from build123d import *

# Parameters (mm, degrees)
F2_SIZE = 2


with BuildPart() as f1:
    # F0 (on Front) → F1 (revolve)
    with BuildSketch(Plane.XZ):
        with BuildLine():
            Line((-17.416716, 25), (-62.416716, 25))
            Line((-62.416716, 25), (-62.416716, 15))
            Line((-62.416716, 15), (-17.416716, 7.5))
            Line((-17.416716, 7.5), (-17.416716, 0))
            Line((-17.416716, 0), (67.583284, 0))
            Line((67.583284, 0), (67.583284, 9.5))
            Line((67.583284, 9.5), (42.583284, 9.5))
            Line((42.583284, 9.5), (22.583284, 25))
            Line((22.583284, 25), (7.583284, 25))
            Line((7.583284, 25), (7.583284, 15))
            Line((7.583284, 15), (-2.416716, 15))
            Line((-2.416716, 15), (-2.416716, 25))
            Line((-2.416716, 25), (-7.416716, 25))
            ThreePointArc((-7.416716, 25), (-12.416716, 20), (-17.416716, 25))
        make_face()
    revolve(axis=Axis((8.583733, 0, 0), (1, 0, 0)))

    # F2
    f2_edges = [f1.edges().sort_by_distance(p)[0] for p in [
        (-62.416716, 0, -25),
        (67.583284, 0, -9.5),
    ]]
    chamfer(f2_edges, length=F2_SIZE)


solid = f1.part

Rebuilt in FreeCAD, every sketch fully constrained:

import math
import FreeCAD as App
import Part
import Sketcher

V = App.Vector


def edges_at(feature, points):
    """Names of the edges that pass closest to the given points."""
    edges = feature.Shape.Edges
    near = lambda p: min(range(len(edges)), key=lambda i: edges[i].distToShape(Part.Vertex(*p))[0])
    return sorted({f"Edge{near(p) + 1}" for p in points})

doc = App.newDocument("Part")
body = doc.addObject("PartDesign::Body", "Body")

# Sketch on XZ plane
sketch1 = body.newObject("Sketcher::SketchObject", "Sketch")
sketch1.AttachmentSupport = (doc.getObject("XZ_Plane"), [""])
sketch1.MapMode = "FlatFace"
sketch1.addGeometry(Part.LineSegment(V(-17, 25, 0), V(-62, 25, 0)), False)
sketch1.addGeometry(Part.LineSegment(V(-62, 25, 0), V(-62, 15, 0)), False)
sketch1.addGeometry(Part.LineSegment(V(-62, 15, 0), V(-17, 8, 0)), False)
sketch1.addGeometry(Part.LineSegment(V(-17, 8, 0), V(-17, 0, 0)), False)
sketch1.addGeometry(Part.LineSegment(V(-17, 0, 0), V(68, 0, 0)), False)
sketch1.addGeometry(Part.LineSegment(V(68, 0, 0), V(68, 10, 0)), False)
sketch1.addGeometry(Part.LineSegment(V(68, 10, 0), V(43, 10, 0)), False)
sketch1.addGeometry(Part.LineSegment(V(43, 10, 0), V(23, 25, 0)), False)
sketch1.addGeometry(Part.LineSegment(V(23, 25, 0), V(8, 25, 0)), False)
sketch1.addGeometry(Part.LineSegment(V(8, 25, 0), V(8, 15, 0)), False)
sketch1.addGeometry(Part.LineSegment(V(8, 15, 0), V(-2, 15, 0)), False)
sketch1.addGeometry(Part.LineSegment(V(-2, 15, 0), V(-2, 25, 0)), False)
sketch1.addGeometry(Part.LineSegment(V(-2, 25, 0), V(-7, 25, 0)), False)
sketch1.addGeometry(Part.ArcOfCircle(Part.Circle(V(-12, 25, 0), V(0, 0, 1), 5), math.radians(180), math.radians(360)), False)
sketch1.addConstraint(Sketcher.Constraint("Coincident", 0, 2, 1, 1))
sketch1.addConstraint(Sketcher.Constraint("Coincident", 1, 2, 2, 1))
sketch1.addConstraint(Sketcher.Constraint("Coincident", 2, 2, 3, 1))
sketch1.addConstraint(Sketcher.Constraint("Coincident", 3, 2, 4, 1))
sketch1.addConstraint(Sketcher.Constraint("Coincident", 4, 2, 5, 1))
sketch1.addConstraint(Sketcher.Constraint("Coincident", 5, 2, 6, 1))
sketch1.addConstraint(Sketcher.Constraint("Coincident", 6, 2, 7, 1))
sketch1.addConstraint(Sketcher.Constraint("Coincident", 7, 2, 8, 1))
sketch1.addConstraint(Sketcher.Constraint("Coincident", 8, 2, 9, 1))
sketch1.addConstraint(Sketcher.Constraint("Coincident", 9, 2, 10, 1))
sketch1.addConstraint(Sketcher.Constraint("Coincident", 10, 2, 11, 1))
sketch1.addConstraint(Sketcher.Constraint("Coincident", 11, 2, 12, 1))
sketch1.addConstraint(Sketcher.Constraint("Coincident", 12, 2, 13, 2))
sketch1.addConstraint(Sketcher.Constraint("Coincident", 13, 1, 0, 1))
sketch1.addConstraint(Sketcher.Constraint("Horizontal", 0))
sketch1.addConstraint(Sketcher.Constraint("Vertical", 1))
sketch1.addConstraint(Sketcher.Constraint("Vertical", 3))
sketch1.addConstraint(Sketcher.Constraint("Horizontal", 4))
sketch1.addConstraint(Sketcher.Constraint("Vertical", 5))
sketch1.addConstraint(Sketcher.Constraint("Horizontal", 6))
sketch1.addConstraint(Sketcher.Constraint("Horizontal", 8))
sketch1.addConstraint(Sketcher.Constraint("Vertical", 9))
sketch1.addConstraint(Sketcher.Constraint("Horizontal", 10))
sketch1.addConstraint(Sketcher.Constraint("Vertical", 11))
sketch1.addConstraint(Sketcher.Constraint("Horizontal", 12))
sketch1.addConstraint(Sketcher.Constraint("PointOnObject", 3, 2, -1))
sketch1.addConstraint(Sketcher.Constraint("Horizontal", 13, 3, 0, 2))
sketch1.addConstraint(Sketcher.Constraint("Horizontal", 0, 2, 7, 2))
sketch1.addConstraint(Sketcher.Constraint("Horizontal", 1, 2, 9, 2))
sketch1.addConstraint(Sketcher.Constraint("Horizontal", 8, 2, 11, 2))
sketch1.addConstraint(Sketcher.Constraint("Vertical", 3, 2, 13, 1))
sketch1.addConstraint(Sketcher.Constraint("Equal", 10, 1))
sketch1.addConstraint(Sketcher.Constraint("Radius", 13, 5.0))
sketch1.addConstraint(Sketcher.Constraint("DistanceX", 0, 2, 0, 1, 45.0))
sketch1.addConstraint(Sketcher.Constraint("DistanceX", 4, 1, 4, 2, 85.0))
sketch1.addConstraint(Sketcher.Constraint("DistanceX", 6, 2, 6, 1, 25.0))
sketch1.addConstraint(Sketcher.Constraint("DistanceX", 8, 2, 8, 1, 15.0))
sketch1.addConstraint(Sketcher.Constraint("DistanceX", 10, 2, 10, 1, 10.0))
sketch1.addConstraint(Sketcher.Constraint("DistanceX", 12, 2, 12, 1, 5.0))
sketch1.addConstraint(Sketcher.Constraint("DistanceY", 3, 2, 3, 1, 7.5))
sketch1.addConstraint(Sketcher.Constraint("DistanceY", 5, 1, 5, 2, 9.5))
sketch1.addConstraint(Sketcher.Constraint("DistanceY", -1, 1, 13, 3, 25.0))
sketch1.addConstraint(Sketcher.Constraint("DistanceX", 13, 3, -1, 1, 12.416716))
revolution = body.newObject("PartDesign::Revolution", "Revolution")
revolution.Profile = sketch1
revolution.ReferenceAxis = (sketch1, ["H_Axis"])
revolution.Angle = 360
doc.recompute()

chamfer = body.newObject("PartDesign::Chamfer", "Chamfer")
chamfer.Base = (revolution, edges_at(revolution, [(-62.417, 0, -25), (67.583, 0, -9.5)]))
chamfer.Size = 2

doc.recompute()
